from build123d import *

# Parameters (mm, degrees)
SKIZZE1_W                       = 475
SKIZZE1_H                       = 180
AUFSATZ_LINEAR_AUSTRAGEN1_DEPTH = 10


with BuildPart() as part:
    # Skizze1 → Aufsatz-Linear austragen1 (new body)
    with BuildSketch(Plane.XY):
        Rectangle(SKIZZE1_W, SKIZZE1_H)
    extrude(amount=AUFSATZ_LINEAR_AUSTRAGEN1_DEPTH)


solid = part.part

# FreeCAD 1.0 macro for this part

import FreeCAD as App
import Part
import Sketcher
from FreeCAD import Vector
Q = App.Units.Quantity


def add_polygon(sketch, points):
    """Adds a closed chain of lines whose ends are joined by coincident constraints."""
    first, n = sketch.GeometryCount, len(points)
    for a, b in zip(points, points[1:] + points[:1]):
        sketch.addGeometry(Part.LineSegment(App.Vector(*a, 0), App.Vector(*b, 0)), False)
    for i in range(n):
        sketch.addConstraint(Sketcher.Constraint("Coincident", first + i, 2, first + (i + 1) % n, 1))

doc = App.newDocument("Part")
body = doc.addObject("PartDesign::Body", "Body")

# Sketch on XY plane
sketch1 = doc.addObject("Sketcher::SketchObject", "Sketch")
body.addObject(sketch1)
sketch1.AttachmentSupport = (doc.XY_Plane, [""])
sketch1.MapMode = "FlatFace"
add_polygon(sketch1, [(-238, 90), (-238, -90), (238, -90), (238, 90)])  # lines 0-3
sketch1.addConstraint([
    Sketcher.Constraint("Vertical", 0),
    Sketcher.Constraint("Horizontal", 1),
    Sketcher.Constraint("Vertical", 2),
    Sketcher.Constraint("Horizontal", 3),
    Sketcher.Constraint("Symmetric", 0, 2, 2, 2, -1, 1),
    Sketcher.Constraint("DistanceX", 1, 1, 1, 2, Q("475 mm")),
    Sketcher.Constraint("DistanceY", 0, 2, 0, 1, Q("180 mm")),
])
pad1 = doc.addObject("PartDesign::Pad", "Pad")
body.addObject(pad1)
pad1.Profile = sketch1
pad1.Length = 10

doc.recompute()
